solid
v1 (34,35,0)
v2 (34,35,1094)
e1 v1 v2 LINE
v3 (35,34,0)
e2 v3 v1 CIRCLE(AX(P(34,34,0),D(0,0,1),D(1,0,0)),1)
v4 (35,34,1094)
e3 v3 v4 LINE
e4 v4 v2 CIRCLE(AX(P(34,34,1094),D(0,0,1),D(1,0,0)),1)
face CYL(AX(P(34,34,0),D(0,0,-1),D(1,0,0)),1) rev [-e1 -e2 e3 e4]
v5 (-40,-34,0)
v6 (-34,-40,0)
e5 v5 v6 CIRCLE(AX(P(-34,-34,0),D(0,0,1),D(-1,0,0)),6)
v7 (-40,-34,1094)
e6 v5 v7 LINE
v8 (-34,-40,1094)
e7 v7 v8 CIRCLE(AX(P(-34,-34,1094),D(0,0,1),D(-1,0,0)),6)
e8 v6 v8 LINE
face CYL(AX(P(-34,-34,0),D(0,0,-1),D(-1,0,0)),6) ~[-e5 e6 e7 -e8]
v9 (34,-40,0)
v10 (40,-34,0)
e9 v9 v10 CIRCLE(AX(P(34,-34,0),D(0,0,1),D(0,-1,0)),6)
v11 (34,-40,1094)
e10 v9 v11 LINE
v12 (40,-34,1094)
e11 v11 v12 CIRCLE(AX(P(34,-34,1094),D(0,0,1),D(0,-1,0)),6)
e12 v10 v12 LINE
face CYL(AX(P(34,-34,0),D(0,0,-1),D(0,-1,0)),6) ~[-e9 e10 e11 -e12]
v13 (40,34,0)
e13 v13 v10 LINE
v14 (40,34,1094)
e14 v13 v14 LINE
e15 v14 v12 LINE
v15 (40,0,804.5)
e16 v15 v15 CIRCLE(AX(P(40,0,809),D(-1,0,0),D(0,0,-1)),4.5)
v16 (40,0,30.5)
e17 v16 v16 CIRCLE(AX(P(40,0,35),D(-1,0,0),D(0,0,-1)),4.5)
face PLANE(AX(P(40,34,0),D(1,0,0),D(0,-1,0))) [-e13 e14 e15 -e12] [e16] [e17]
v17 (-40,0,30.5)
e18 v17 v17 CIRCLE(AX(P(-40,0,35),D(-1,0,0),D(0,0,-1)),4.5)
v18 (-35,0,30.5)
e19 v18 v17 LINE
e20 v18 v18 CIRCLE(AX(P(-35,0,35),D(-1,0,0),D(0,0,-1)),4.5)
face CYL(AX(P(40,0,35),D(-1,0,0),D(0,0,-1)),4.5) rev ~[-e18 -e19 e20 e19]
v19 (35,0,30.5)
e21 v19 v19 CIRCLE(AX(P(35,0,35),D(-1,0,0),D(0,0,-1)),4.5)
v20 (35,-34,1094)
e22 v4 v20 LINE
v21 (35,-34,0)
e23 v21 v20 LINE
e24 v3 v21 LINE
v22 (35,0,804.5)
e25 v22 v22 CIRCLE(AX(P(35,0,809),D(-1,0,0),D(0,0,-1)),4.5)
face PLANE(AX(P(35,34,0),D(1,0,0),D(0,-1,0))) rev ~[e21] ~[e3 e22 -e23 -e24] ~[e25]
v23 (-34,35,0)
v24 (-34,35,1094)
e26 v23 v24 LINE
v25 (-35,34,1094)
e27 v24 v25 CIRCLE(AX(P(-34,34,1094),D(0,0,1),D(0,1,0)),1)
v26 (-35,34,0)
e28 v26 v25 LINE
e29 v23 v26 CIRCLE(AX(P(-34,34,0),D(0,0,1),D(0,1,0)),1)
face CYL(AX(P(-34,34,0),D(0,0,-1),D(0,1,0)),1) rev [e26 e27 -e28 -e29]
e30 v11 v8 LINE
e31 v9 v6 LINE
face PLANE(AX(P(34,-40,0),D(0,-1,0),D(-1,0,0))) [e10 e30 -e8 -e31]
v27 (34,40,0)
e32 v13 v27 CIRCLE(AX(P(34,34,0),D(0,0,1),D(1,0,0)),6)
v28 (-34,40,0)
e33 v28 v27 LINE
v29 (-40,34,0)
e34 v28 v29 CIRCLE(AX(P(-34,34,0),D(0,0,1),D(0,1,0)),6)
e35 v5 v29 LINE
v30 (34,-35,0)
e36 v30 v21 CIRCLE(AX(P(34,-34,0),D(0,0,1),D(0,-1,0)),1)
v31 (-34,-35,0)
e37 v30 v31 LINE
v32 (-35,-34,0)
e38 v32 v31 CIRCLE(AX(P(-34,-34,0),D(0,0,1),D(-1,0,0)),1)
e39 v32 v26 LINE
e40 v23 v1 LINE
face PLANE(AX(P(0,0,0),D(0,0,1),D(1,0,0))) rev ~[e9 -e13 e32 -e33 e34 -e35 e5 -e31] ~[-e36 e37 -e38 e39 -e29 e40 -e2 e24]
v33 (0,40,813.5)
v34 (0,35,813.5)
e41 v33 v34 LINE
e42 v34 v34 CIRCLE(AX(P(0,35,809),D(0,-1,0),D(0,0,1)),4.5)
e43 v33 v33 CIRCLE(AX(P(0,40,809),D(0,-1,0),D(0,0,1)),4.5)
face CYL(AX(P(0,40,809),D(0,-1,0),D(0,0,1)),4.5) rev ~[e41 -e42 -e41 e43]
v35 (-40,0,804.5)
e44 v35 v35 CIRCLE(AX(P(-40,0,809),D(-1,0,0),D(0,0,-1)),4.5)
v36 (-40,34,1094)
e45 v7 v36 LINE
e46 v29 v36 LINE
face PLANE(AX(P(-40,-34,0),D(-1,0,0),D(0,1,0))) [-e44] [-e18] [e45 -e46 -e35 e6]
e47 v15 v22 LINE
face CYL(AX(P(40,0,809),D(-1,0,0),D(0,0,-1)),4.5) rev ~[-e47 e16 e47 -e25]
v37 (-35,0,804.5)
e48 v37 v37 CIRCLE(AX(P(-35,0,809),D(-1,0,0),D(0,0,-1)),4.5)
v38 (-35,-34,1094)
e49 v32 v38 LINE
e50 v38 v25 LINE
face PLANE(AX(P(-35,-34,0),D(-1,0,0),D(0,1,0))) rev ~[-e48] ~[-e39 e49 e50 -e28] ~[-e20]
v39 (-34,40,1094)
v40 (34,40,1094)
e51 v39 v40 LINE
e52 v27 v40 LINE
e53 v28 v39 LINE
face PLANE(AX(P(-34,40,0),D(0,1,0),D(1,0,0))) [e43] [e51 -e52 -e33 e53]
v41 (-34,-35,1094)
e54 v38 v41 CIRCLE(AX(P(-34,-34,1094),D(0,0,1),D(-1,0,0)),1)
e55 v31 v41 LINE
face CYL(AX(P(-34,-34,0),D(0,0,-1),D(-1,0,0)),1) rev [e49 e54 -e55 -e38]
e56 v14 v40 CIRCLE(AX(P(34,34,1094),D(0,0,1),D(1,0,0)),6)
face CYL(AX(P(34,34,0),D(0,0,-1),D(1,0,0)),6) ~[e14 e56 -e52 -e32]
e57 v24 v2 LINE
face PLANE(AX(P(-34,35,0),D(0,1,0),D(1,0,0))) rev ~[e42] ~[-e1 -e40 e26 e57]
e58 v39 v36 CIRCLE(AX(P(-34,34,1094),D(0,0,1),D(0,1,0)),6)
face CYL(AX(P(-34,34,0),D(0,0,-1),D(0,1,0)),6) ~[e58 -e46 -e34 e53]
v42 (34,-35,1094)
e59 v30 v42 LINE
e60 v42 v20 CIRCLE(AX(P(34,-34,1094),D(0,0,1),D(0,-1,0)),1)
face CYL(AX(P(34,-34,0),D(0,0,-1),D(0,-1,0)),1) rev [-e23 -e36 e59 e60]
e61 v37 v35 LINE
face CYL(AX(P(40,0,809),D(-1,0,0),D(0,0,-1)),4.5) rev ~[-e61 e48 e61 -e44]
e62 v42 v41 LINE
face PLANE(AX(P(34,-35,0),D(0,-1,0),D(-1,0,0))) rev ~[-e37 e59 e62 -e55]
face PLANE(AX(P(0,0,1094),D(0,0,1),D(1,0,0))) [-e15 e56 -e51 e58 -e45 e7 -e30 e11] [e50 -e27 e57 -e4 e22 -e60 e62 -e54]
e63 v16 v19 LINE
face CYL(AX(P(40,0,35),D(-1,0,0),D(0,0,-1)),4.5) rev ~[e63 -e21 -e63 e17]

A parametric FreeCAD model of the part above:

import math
import FreeCAD as App
import Part
import Sketcher
from FreeCAD import Vector

doc = App.newDocument("Part")
body = doc.addObject("PartDesign::Body", "Body")

sketch1 = body.newObject("Sketcher::SketchObject", "Sketch")
sketch1.AttachmentSupport = (doc.getObject("XY_Plane"), [""])
sketch1.MapMode = "FlatFace"
sketch1.addGeometry(Part.LineSegment(Vector(40, -34, 0), Vector(40, 34, 0)), False)
sketch1.addGeometry(Part.ArcOfCircle(Part.Circle(Vector(34, 34, 0), Vector(0, 0, 1), 6), math.radians(0), math.radians(90)), False)
sketch1.addGeometry(Part.LineSegment(Vector(34, 40, 0), Vector(-34, 40, 0)), False)
sketch1.addGeometry(Part.ArcOfCircle(Part.Circle(Vector(-34, 34, 0), Vector(0, 0, 1), 6), math.radians(90), math.radians(180)), False)
sketch1.addGeometry(Part.LineSegment(Vector(-40, 34, 0), Vector(-40, -34, 0)), False)
sketch1.addGeometry(Part.ArcOfCircle(Part.Circle(Vector(-34, -34, 0), Vector(0, 0, 1), 6), math.radians(180), math.radians(270)), False)
sketch1.addGeometry(Part.LineSegment(Vector(-34, -40, 0), Vector(34, -40, 0)), False)
sketch1.addGeometry(Part.ArcOfCircle(Part.Circle(Vector(34, -34, 0), Vector(0, 0, 1), 6), math.radians(-90), math.radians(0)), False)
sketch1.addGeometry(Part.ArcOfCircle(Part.Circle(Vector(-34, 34, 0), Vector(0, 0, 1), 1), math.radians(90), math.radians(180)), False)
sketch1.addGeometry(Part.LineSegment(Vector(-34, 35, 0), Vector(34, 35, 0)), False)
sketch1.addGeometry(Part.ArcOfCircle(Part.Circle(Vector(34, 34, 0), Vector(0, 0, 1), 1), math.radians(0), math.radians(90)), False)
sketch1.addGeometry(Part.LineSegment(Vector(35, 34, 0), Vector(35, -34, 0)), False)
sketch1.addGeometry(Part.ArcOfCircle(Part.Circle(Vector(34, -34, 0), Vector(0, 0, 1), 1), math.radians(-90), math.radians(0)), False)
sketch1.addGeometry(Part.LineSegment(Vector(34, -35, 0), Vector(-34, -35, 0)), False)
sketch1.addGeometry(Part.ArcOfCircle(Part.Circle(Vector(-34, -34, 0), Vector(0, 0, 1), 1), math.radians(180), math.radians(270)), False)
sketch1.addGeometry(Part.LineSegment(Vector(-35, -34, 0), Vector(-35, 34, 0)), False)
sketch1.addConstraint(Sketcher.Constraint("Tangent", 0, 2, 1, 1))
sketch1.addConstraint(Sketcher.Constraint("Tangent", 1, 2, 2, 1))
sketch1.addConstraint(Sketcher.Constraint("Tangent", 2, 2, 3, 1))
sketch1.addConstraint(Sketcher.Constraint("Tangent", 3, 2, 4, 1))
sketch1.addConstraint(Sketcher.Constraint("Tangent", 4, 2, 5, 1))
sketch1.addConstraint(Sketcher.Constraint("Tangent", 5, 2, 6, 1))
sketch1.addConstraint(Sketcher.Constraint("Tangent", 6, 2, 7, 1))
sketch1.addConstraint(Sketcher.Constraint("Tangent", 7, 2, 0, 1))
sketch1.addConstraint(Sketcher.Constraint("Tangent", 8, 1, 9, 1))
sketch1.addConstraint(Sketcher.Constraint("Tangent", 9, 2, 10, 2))
sketch1.addConstraint(Sketcher.Constraint("Tangent", 10, 1, 11, 1))
sketch1.addConstraint(Sketcher.Constraint("Tangent", 11, 2, 12, 2))
sketch1.addConstraint(Sketcher.Constraint("Tangent", 12, 1, 13, 1))
sketch1.addConstraint(Sketcher.Constraint("Tangent", 13, 2, 14, 2))
sketch1.addConstraint(Sketcher.Constraint("Tangent", 14, 1, 15, 1))
sketch1.addConstraint(Sketcher.Constraint("Tangent", 15, 2, 8, 2))
sketch1.addConstraint(Sketcher.Constraint("Vertical", 0))
sketch1.addConstraint(Sketcher.Constraint("Horizontal", 2))
sketch1.addConstraint(Sketcher.Constraint("Vertical", 4))
sketch1.addConstraint(Sketcher.Constraint("Horizontal", 6))
sketch1.addConstraint(Sketcher.Constraint("Horizontal", 9))
sketch1.addConstraint(Sketcher.Constraint("Vertical", 11))
sketch1.addConstraint(Sketcher.Constraint("Horizontal", 13))
sketch1.addConstraint(Sketcher.Constraint("Vertical", 15))
sketch1.addConstraint(Sketcher.Constraint("Coincident", 8, 3, 3, 3))
sketch1.addConstraint(Sketcher.Constraint("Coincident", 10, 3, 1, 3))
sketch1.addConstraint(Sketcher.Constraint("Coincident", 12, 3, 7, 3))
sketch1.addConstraint(Sketcher.Constraint("Equal", 1, 3))
sketch1.addConstraint(Sketcher.Constraint("Equal", 3, 5))
sketch1.addConstraint(Sketcher.Constraint("Equal", 5, 7))
sketch1.addConstraint(Sketcher.Constraint("Equal", 12, 14))
sketch1.addConstraint(Sketcher.Constraint("Symmetric", 1, 3, 5, 3, -1, 1))
sketch1.addConstraint(Sketcher.Constraint("Equal", 13, 0))
sketch1.addConstraint(Sketcher.Constraint("Radius", 1, 6.0))
sketch1.addConstraint(Sketcher.Constraint("Radius", 8, 1.0))
sketch1.addConstraint(Sketcher.Constraint("DistanceX", 2, 2, 2, 1, 68.0))
pad1 = body.newObject("PartDesign::Pad", "Pad")
pad1.Profile = sketch1
pad1.Length = 1094

sketch2 = body.newObject("Sketcher::SketchObject", "Sketch001")
sketch2.AttachmentSupport = (doc.getObject("YZ_Plane"), [""])
sketch2.MapMode = "FlatFace"
sketch2.AttachmentOffset = App.Placement(Vector(0, 0, 40), App.Rotation())
sketch2.addGeometry(Part.Circle(Vector(0, 809, 0), Vector(0, 0, 1), 4.5), False)
sketch2.addGeometry(Part.Circle(Vector(0, 35, 0), Vector(0, 0, 1), 4.5), False)
sketch2.addConstraint(Sketcher.Constraint("Equal", 0, 1))
sketch2.addConstraint(Sketcher.Constraint("PointOnObject", 0, 3, -2))
sketch2.addConstraint(Sketcher.Constraint("PointOnObject", 1, 3, -2))
sketch2.addConstraint(Sketcher.Constraint("Diameter", 0, 9.0))
sketch2.addConstraint(Sketcher.Constraint("DistanceY", -1, 1, 0, 3, 809.0))
sketch2.addConstraint(Sketcher.Constraint("DistanceY", -1, 1, 1, 3, 35.0))
doc.recompute()
hole = body.newObject("PartDesign::Hole", "Hole")
hole.Profile = sketch2
hole.ThreadType = "None"
hole.Diameter = 9
hole.DepthType = "ThroughAll"

sketch3 = body.newObject("Sketcher::SketchObject", "Sketch002")
sketch3.AttachmentSupport = (doc.getObject("XZ_Plane"), [""])
sketch3.MapMode = "FlatFace"
sketch3.AttachmentOffset = App.Placement(Vector(0, 0, -40), App.Rotation())
sketch3.addGeometry(Part.Circle(Vector(0, 809, 0), Vector(0, 0, 1), 4.5), False)
sketch3.addConstraint(Sketcher.Constraint("PointOnObject", 0, 3, -2))
sketch3.addConstraint(Sketcher.Constraint("Diameter", 0, 9.0))
sketch3.addConstraint(Sketcher.Constraint("DistanceY", -1, 1, 0, 3, 809.0))
doc.recompute()
hole2 = body.newObject("PartDesign::Hole", "Hole001")
hole2.Profile = sketch3
hole2.ThreadType = "None"
hole2.Diameter = 9
hole2.DepthType = "Dimension"
hole2.Depth = 8
hole2.DrillPoint = "Angled"
hole2.DrillPointAngle = 118
hole2.Reversed = True

doc.recompute()
